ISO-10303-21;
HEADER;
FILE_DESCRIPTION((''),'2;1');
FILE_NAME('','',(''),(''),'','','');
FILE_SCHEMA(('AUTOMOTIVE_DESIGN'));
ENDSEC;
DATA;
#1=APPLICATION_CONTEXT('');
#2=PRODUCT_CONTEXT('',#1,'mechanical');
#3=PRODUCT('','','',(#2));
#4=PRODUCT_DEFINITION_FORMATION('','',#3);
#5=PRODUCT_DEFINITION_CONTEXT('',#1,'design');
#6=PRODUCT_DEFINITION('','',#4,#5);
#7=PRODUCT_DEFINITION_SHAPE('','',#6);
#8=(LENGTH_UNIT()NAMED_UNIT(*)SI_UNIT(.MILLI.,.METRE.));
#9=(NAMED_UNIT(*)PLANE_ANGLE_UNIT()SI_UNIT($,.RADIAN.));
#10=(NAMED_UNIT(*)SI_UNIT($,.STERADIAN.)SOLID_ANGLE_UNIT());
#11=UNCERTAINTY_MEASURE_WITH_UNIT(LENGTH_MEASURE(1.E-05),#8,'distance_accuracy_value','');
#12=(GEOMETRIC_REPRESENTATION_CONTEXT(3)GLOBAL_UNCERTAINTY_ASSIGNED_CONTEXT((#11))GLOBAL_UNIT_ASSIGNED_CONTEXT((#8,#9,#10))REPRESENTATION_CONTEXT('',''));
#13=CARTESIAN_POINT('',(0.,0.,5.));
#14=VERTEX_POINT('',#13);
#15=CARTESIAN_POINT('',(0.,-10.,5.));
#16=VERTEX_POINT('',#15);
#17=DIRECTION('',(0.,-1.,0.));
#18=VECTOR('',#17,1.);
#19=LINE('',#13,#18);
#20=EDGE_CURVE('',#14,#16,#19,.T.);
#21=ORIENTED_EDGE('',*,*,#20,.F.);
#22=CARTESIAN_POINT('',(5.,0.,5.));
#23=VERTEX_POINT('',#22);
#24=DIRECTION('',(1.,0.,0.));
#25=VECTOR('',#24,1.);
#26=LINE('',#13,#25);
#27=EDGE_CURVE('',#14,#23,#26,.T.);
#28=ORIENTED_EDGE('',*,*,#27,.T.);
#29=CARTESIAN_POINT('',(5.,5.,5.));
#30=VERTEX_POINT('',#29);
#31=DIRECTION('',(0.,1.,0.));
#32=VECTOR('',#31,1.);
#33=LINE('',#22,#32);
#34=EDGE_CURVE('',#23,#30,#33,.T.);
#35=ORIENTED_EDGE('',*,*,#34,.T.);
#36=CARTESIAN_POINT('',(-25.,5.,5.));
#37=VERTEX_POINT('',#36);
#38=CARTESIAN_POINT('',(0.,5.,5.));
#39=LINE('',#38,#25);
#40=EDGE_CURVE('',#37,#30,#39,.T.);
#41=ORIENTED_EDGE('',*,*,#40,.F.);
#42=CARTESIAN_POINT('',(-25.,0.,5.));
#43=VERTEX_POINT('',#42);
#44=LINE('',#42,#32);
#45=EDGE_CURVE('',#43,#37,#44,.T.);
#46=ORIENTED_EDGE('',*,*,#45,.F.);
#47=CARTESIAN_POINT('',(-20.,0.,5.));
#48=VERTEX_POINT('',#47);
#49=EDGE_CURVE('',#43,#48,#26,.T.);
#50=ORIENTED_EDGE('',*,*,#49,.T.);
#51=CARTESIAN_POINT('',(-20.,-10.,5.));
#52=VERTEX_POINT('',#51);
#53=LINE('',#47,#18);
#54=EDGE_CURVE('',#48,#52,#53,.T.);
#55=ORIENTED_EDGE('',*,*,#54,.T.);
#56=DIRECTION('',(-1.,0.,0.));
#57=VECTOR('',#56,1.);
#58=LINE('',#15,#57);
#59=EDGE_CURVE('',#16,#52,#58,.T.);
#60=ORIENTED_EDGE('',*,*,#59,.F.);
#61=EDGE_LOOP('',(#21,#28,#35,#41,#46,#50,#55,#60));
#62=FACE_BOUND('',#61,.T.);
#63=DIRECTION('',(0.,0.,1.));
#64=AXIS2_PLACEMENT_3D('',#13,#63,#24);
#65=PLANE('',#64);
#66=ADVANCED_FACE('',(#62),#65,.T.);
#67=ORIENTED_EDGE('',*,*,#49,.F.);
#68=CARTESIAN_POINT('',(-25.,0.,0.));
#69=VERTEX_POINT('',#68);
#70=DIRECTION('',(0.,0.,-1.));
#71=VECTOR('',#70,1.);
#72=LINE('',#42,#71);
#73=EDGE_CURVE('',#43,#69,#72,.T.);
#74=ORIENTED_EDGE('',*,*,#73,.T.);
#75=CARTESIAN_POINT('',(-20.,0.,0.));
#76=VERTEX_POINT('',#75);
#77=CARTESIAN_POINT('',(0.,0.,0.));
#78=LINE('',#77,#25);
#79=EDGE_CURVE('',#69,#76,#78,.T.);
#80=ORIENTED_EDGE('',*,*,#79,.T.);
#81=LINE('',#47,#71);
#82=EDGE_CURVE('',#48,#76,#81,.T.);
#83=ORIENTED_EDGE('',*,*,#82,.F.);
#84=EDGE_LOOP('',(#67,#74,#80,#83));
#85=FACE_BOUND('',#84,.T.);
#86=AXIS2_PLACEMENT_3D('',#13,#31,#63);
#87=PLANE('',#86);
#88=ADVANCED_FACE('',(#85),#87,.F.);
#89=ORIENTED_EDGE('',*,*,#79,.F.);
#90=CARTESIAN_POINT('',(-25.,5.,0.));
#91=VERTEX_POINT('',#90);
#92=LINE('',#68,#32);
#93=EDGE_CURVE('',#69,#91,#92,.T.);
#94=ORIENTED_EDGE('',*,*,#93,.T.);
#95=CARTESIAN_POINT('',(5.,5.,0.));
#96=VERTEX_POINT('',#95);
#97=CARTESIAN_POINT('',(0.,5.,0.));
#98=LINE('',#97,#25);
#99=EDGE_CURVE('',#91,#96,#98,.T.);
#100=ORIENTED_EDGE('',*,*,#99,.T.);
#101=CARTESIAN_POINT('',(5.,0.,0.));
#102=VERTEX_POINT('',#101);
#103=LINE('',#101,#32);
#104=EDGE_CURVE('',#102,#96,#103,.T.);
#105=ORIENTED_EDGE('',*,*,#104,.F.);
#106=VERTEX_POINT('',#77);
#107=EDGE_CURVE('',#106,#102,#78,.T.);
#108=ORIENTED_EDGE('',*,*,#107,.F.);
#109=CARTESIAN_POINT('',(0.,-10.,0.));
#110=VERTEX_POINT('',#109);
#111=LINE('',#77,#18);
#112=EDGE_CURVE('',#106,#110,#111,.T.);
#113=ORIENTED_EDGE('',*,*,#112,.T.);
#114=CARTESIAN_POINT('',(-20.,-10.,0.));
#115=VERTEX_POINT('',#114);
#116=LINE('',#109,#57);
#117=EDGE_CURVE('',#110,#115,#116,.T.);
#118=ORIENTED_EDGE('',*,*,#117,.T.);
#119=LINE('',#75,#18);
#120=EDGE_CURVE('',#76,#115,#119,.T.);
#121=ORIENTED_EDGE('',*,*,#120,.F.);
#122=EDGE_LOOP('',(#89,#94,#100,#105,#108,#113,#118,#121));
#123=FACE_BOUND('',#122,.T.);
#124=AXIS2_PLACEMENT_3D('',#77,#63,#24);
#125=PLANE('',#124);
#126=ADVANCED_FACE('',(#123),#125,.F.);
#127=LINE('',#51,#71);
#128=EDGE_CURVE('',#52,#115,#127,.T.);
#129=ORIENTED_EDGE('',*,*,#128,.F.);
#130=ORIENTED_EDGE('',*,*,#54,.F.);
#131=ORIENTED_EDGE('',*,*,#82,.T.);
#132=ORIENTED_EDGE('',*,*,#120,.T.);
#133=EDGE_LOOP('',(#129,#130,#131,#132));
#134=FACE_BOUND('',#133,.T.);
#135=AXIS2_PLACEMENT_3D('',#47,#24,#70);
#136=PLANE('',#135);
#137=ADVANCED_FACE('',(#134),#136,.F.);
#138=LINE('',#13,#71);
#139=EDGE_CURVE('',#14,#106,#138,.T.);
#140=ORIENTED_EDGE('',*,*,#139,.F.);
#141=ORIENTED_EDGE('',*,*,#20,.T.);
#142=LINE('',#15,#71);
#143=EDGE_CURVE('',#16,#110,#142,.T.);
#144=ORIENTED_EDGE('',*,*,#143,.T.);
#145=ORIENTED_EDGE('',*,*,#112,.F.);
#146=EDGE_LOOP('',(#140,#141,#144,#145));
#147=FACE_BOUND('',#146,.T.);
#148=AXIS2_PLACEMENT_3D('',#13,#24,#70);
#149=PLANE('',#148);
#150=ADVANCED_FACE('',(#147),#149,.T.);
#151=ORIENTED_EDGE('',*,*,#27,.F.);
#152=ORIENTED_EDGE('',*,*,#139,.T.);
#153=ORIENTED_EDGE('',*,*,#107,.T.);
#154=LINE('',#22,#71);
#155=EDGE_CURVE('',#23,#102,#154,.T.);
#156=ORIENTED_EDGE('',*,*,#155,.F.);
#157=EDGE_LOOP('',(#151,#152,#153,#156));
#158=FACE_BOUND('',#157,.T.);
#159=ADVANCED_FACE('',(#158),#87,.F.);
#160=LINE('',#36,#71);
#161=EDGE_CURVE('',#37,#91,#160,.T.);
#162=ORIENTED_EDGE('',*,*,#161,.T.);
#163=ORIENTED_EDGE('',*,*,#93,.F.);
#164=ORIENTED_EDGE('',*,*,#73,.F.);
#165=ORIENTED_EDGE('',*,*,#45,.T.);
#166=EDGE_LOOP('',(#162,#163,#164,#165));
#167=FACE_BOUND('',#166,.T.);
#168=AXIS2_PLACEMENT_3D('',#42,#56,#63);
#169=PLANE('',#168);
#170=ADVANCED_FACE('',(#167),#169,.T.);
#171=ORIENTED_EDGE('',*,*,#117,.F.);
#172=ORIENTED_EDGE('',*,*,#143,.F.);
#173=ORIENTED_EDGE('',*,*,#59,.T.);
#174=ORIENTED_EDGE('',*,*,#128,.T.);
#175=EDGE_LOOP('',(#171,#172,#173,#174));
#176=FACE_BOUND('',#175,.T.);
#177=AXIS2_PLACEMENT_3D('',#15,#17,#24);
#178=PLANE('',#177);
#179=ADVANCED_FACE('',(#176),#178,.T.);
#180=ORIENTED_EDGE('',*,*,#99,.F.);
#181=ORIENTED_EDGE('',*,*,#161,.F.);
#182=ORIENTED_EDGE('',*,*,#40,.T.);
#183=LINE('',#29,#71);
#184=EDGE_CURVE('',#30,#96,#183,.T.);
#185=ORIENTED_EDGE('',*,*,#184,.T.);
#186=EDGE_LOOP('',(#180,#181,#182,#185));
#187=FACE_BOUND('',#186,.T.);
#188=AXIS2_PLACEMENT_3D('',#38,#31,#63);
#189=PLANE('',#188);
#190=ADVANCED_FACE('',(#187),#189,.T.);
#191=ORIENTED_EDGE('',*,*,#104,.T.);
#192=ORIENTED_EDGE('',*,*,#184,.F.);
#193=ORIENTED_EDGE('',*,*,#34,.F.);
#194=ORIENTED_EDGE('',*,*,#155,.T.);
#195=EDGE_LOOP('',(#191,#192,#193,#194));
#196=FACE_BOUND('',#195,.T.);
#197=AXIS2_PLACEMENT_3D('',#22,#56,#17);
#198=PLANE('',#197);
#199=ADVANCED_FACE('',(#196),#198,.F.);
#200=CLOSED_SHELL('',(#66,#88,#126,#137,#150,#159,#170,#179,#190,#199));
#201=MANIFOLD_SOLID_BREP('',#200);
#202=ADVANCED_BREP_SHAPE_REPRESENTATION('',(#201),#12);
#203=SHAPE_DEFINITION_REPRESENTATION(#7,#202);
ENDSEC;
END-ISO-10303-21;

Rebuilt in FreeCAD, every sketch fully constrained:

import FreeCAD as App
import Part
import Sketcher
Q = App.Units.Quantity

doc = App.newDocument("Part")
body = doc.addObject("PartDesign::Body", "Body")

sketch1 = doc.addObject("Sketcher::SketchObject", "Sketch")
body.addObject(sketch1)
sketch1.AttachmentSupport = (doc.XY_Plane, [""])
sketch1.MapMode = "FlatFace"
sketch1.addGeometry(Part.LineSegment(App.Vector(-20, 0, 0), App.Vector(-20, -10, 0)), False)
sketch1.addGeometry(Part.LineSegment(App.Vector(-20, -10, 0), App.Vector(0, -10, 0)), False)
sketch1.addGeometry(Part.LineSegment(App.Vector(0, -10, 0), App.Vector(0, 0, 0)), False)
sketch1.addGeometry(Part.LineSegment(App.Vector(0, 0, 0), App.Vector(5, 0, 0)), False)
sketch1.addGeometry(Part.LineSegment(App.Vector(5, 0, 0), App.Vector(5, 5, 0)), False)
sketch1.addGeometry(Part.LineSegment(App.Vector(5, 5, 0), App.Vector(-25, 5, 0)), False)
sketch1.addGeometry(Part.LineSegment(App.Vector(-25, 5, 0), App.Vector(-25, 0, 0)), False)
sketch1.addGeometry(Part.LineSegment(App.Vector(-25, 0, 0), App.Vector(-20, 0, 0)), False)
sketch1.addConstraint(Sketcher.Constraint("Coincident", 0, 2, 1, 1))
sketch1.addConstraint(Sketcher.Constraint("Coincident", 1, 2, 2, 1))
sketch1.addConstraint(Sketcher.Constraint("Coincident", 2, 2, 3, 1))
sketch1.addConstraint(Sketcher.Constraint("Coincident", 3, 2, 4, 1))
sketch1.addConstraint(Sketcher.Constraint("Coincident", 4, 2, 5, 1))
sketch1.addConstraint(Sketcher.Constraint("Coincident", 5, 2, 6, 1))
sketch1.addConstraint(Sketcher.Constraint("Coincident", 6, 2, 7, 1))
sketch1.addConstraint(Sketcher.Constraint("Coincident", 7, 2, 0, 1))
sketch1.addConstraint(Sketcher.Constraint("Vertical", 0))
sketch1.addConstraint(Sketcher.Constraint("Horizontal", 1))
sketch1.addConstraint(Sketcher.Constraint("Vertical", 2))
sketch1.addConstraint(Sketcher.Constraint("Horizontal", 3))
sketch1.addConstraint(Sketcher.Constraint("Vertical", 4))
sketch1.addConstraint(Sketcher.Constraint("Horizontal", 5))
sketch1.addConstraint(Sketcher.Constraint("Vertical", 6))
sketch1.addConstraint(Sketcher.Constraint("Horizontal", 7))
sketch1.addConstraint(Sketcher.Constraint("Coincident", 2, 2, -1, 1))
sketch1.addConstraint(Sketcher.Constraint("PointOnObject", 6, 2, -1))
sketch1.addConstraint(Sketcher.Constraint("Equal", 3, 7))
sketch1.addConstraint(Sketcher.Constraint("Equal", 7, 4))
sketch1.addConstraint(Sketcher.Constraint("DistanceX", 1, 1, 1, 2, Q("20 mm")))
sketch1.addConstraint(Sketcher.Constraint("DistanceX", 3, 1, 3, 2, Q("5 mm")))
sketch1.addConstraint(Sketcher.Constraint("DistanceY", 0, 2, 0, 1, Q("10 mm")))
pad1 = doc.addObject("PartDesign::Pad", "Pad")
body.addObject(pad1)
pad1.Profile = sketch1
pad1.Length = 5

doc.recompute()
